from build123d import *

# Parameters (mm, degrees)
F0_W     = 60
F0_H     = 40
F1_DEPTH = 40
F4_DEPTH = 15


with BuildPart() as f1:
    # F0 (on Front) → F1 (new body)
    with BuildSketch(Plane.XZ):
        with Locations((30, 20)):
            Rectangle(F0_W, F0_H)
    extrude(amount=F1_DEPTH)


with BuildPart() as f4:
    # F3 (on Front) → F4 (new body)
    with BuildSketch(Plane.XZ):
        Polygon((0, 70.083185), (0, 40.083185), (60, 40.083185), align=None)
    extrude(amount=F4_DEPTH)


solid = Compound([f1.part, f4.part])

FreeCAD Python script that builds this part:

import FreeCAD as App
import Part
import Sketcher

V = App.Vector


def add_polygon(sketch, points):
    """Adds a closed chain of lines whose ends are joined by coincident constraints."""
    first, n = sketch.GeometryCount, len(points)
    for a, b in zip(points, points[1:] + points[:1]):
        sketch.addGeometry(Part.LineSegment(App.Vector(*a, 0), App.Vector(*b, 0)), False)
    for i in range(n):
        sketch.addConstraint(Sketcher.Constraint("Coincident", first + i, 2, first + (i + 1) % n, 1))

doc = App.newDocument("Part")
params = doc.addObject("Spreadsheet::Sheet", "Params")
for row, (alias, value) in enumerate([
    ("sketch1_width", "60 mm"),
    ("sketch1_height", "40 mm"),
    ("pad1_length", "40 mm"),
    ("sketch2_width", "60 mm"),
    ("sketch2_height", "30 mm"),
    ("pad2_length", "15 mm"),
], start=1):
    params.set(f"A{row}", alias)
    params.set(f"B{row}", "=" + value)
    params.setAlias(f"B{row}", alias)

body = doc.addObject("PartDesign::Body", "Body")

# Sketch on XZ plane
sketch1 = body.newObject("Sketcher::SketchObject", "Sketch")
sketch1.AttachmentSupport = (doc.getObject("XZ_Plane"), [""])
sketch1.MapMode = "FlatFace"
add_polygon(sketch1, [(0, 40), (0, 0), (60, 0), (60, 40)])  # lines 0-3
sketch1.addConstraint([
    Sketcher.Constraint("Vertical", 0),
    Sketcher.Constraint("Horizontal", 1),
    Sketcher.Constraint("Vertical", 2),
    Sketcher.Constraint("Horizontal", 3),
    Sketcher.Constraint("Coincident", 0, 2, -1, 1),
    Sketcher.Constraint("DistanceX", 1, 1, 1, 2, 60.0),
    Sketcher.Constraint("DistanceY", 0, 2, 0, 1, 40.0),
])
sketch1.setExpression("Constraints[9]", "Params.sketch1_width")
sketch1.setExpression("Constraints[10]", "Params.sketch1_height")
pad1 = body.newObject("PartDesign::Pad", "Pad")
pad1.Profile = sketch1
pad1.setExpression("Length", "Params.pad1_length")
body2 = doc.addObject("PartDesign::Body", "Body001")

# Sketch on XZ plane
sketch2 = body2.newObject("Sketcher::SketchObject", "Sketch001")
sketch2.AttachmentSupport = (doc.getObject("XZ_Plane001"), [""])
sketch2.MapMode = "FlatFace"
add_polygon(sketch2, [(0, 70.083185), (0, 40.083185), (60, 40.083185)])  # lines 0-2
sketch2.addConstraint([
    Sketcher.Constraint("Vertical", 0),
    Sketcher.Constraint("Horizontal", 1),
    Sketcher.Constraint("PointOnObject", 0, 2, -2),
    Sketcher.Constraint("DistanceX", 1, 1, 1, 2, 60.0),
    Sketcher.Constraint("DistanceY", 0, 2, 0, 1, 30.0),
    Sketcher.Constraint("DistanceY", -1, 1, 0, 2, 40.083185),
])
sketch2.setExpression("Constraints[6]", "Params.sketch2_width")
sketch2.setExpression("Constraints[7]", "Params.sketch2_height")
pad2 = body2.newObject("PartDesign::Pad", "Pad001")
pad2.Profile = sketch2
pad2.setExpression("Length", "Params.pad2_length")

doc.recompute()
